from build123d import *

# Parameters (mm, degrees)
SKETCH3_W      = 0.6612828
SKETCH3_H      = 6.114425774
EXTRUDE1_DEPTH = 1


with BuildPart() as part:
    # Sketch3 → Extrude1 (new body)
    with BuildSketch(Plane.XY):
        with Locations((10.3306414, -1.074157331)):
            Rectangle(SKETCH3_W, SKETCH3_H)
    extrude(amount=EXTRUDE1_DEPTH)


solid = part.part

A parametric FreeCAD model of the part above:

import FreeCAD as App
import Part
import Sketcher
Q = App.Units.Quantity

doc = App.newDocument("Part")
body = doc.addObject("PartDesign::Body", "Body")

# Sketch on XY plane
sketch1 = doc.addObject("Sketcher::SketchObject", "Sketch")
body.addObject(sketch1)
sketch1.AttachmentSupport = (doc.XY_Plane, [""])
sketch1.MapMode = "FlatFace"
sketch1.addGeometry([
    Part.LineSegment(App.Vector(10, 2, 0), App.Vector(10, -4.1, 0)),
    Part.LineSegment(App.Vector(10, -4.1, 0), App.Vector(10.7, -4.1, 0)),
    Part.LineSegment(App.Vector(10.7, -4.1, 0), App.Vector(10.7, 2, 0)),
    Part.LineSegment(App.Vector(10.7, 2, 0), App.Vector(10, 2, 0)),
], False)
sketch1.addConstraint([
    Sketcher.Constraint("Coincident", 0, 2, 1, 1),
    Sketcher.Constraint("Coincident", 1, 2, 2, 1),
    Sketcher.Constraint("Coincident", 2, 2, 3, 1),
    Sketcher.Constraint("Coincident", 3, 2, 0, 1),
    Sketcher.Constraint("Vertical", 0),
    Sketcher.Constraint("Horizontal", 1),
    Sketcher.Constraint("Vertical", 2),
    Sketcher.Constraint("Horizontal", 3),
    Sketcher.Constraint("DistanceX", -1, 1, 0, 2, Q("10 mm")),
    Sketcher.Constraint("DistanceX", 1, 1, 1, 2, Q("0.661283 mm")),
    Sketcher.Constraint("DistanceY", 0, 2, 0, 1, Q("6.114426 mm")),
    Sketcher.Constraint("DistanceY", 0, 2, -1, 1, Q("4.13137 mm")),
])
pad1 = doc.addObject("PartDesign::Pad", "Pad")
body.addObject(pad1)
pad1.Profile = sketch1
pad1.Length = 1

doc.recompute()
